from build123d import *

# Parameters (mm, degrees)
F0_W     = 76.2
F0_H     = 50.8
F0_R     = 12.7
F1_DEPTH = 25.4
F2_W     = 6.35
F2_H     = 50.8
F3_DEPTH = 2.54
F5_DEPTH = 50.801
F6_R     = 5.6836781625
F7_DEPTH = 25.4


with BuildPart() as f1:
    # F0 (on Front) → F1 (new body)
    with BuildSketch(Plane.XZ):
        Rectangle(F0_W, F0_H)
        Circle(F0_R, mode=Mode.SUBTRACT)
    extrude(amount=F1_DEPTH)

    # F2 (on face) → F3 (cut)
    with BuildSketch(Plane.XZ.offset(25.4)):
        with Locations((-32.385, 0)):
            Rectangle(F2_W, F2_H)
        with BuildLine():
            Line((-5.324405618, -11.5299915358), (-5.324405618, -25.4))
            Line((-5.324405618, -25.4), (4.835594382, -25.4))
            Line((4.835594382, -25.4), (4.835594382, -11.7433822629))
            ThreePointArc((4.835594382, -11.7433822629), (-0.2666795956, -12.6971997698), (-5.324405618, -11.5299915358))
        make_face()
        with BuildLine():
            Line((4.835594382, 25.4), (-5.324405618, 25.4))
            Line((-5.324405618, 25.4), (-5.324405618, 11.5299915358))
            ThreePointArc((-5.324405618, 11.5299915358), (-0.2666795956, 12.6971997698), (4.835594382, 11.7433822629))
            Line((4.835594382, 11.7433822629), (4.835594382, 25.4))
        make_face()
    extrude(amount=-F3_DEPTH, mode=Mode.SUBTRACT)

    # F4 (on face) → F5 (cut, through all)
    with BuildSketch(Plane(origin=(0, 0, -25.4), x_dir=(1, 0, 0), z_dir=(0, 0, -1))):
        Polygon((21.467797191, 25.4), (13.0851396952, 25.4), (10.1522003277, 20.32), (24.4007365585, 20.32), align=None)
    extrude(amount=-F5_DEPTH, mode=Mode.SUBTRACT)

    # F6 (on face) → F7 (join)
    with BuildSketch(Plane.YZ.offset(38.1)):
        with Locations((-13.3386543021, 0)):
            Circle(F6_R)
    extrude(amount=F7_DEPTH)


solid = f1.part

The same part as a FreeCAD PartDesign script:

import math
import FreeCAD as App
import Part
import Sketcher

V = App.Vector
Q = App.Units.Quantity

doc = App.newDocument("Part")
body = doc.addObject("PartDesign::Body", "Body")

sketch1 = doc.addObject("Sketcher::SketchObject", "Sketch")
body.addObject(sketch1)
sketch1.AttachmentSupport = (doc.XZ_Plane, [""])
sketch1.MapMode = "FlatFace"
sketch1.addGeometry([
    Part.LineSegment(V(-38, 25, 0), V(-38, -25, 0)),
    Part.LineSegment(V(-38, -25, 0), V(38, -25, 0)),
    Part.LineSegment(V(38, -25, 0), V(38, 25, 0)),
    Part.LineSegment(V(38, 25, 0), V(-38, 25, 0)),
    Part.Circle(V(0, 0, 0), V(0, 0, 1), 13),
], False)
sketch1.addConstraint([
    Sketcher.Constraint("Coincident", 0, 2, 1, 1),
    Sketcher.Constraint("Coincident", 1, 2, 2, 1),
    Sketcher.Constraint("Coincident", 2, 2, 3, 1),
    Sketcher.Constraint("Coincident", 3, 2, 0, 1),
    Sketcher.Constraint("Vertical", 0),
    Sketcher.Constraint("Horizontal", 1),
    Sketcher.Constraint("Vertical", 2),
    Sketcher.Constraint("Horizontal", 3),
    Sketcher.Constraint("Coincident", 4, 3, -1, 1),
    Sketcher.Constraint("Symmetric", 0, 2, 2, 2, -1, 1),
    Sketcher.Constraint("Diameter", 4, Q("1 in")),
    Sketcher.Constraint("DistanceX", 1, 1, 1, 2, Q("3 in")),
    Sketcher.Constraint("DistanceY", 0, 2, 0, 1, Q("2 in")),
])
pad1 = doc.addObject("PartDesign::Pad", "Pad")
body.addObject(pad1)
pad1.Profile = sketch1
pad1.Length = Q("1 in")

sketch2 = doc.addObject("Sketcher::SketchObject", "Sketch001")
body.addObject(sketch2)
sketch2.AttachmentSupport = (doc.XZ_Plane, [""])
sketch2.MapMode = "FlatFace"
sketch2.AttachmentOffset = App.Placement(V(0, 0, 1 * 25.4), App.Rotation())
sketch2.addGeometry([
    Part.LineSegment(V(-36, 25, 0), V(-36, -25, 0)),
    Part.LineSegment(V(-36, -25, 0), V(-29, -25, 0)),
    Part.LineSegment(V(-29, -25, 0), V(-29, 25, 0)),
    Part.LineSegment(V(-29, 25, 0), V(-36, 25, 0)),
    Part.LineSegment(V(-5, -12, 0), V(-5, -25, 0)),
    Part.LineSegment(V(-5, -25, 0), V(5, -25, 0)),
    Part.LineSegment(V(5, -25, 0), V(5, -12, 0)),
    Part.ArcOfCircle(Part.Circle(V(0, 0, 0), V(0, 0, 1), 13), math.radians(-115), math.radians(-68)),
    Part.LineSegment(V(5, 25, 0), V(-5, 25, 0)),
    Part.LineSegment(V(-5, 25, 0), V(-5, 12, 0)),
    Part.ArcOfCircle(Part.Circle(V(0, 0, 0), V(0, 0, 1), 13), math.radians(68), math.radians(115)),
    Part.LineSegment(V(5, 12, 0), V(5, 25, 0)),
], False)
sketch2.addConstraint([
    Sketcher.Constraint("Coincident", 0, 2, 1, 1),
    Sketcher.Constraint("Coincident", 1, 2, 2, 1),
    Sketcher.Constraint("Coincident", 2, 2, 3, 1),
    Sketcher.Constraint("Coincident", 3, 2, 0, 1),
    Sketcher.Constraint("Coincident", 4, 2, 5, 1),
    Sketcher.Constraint("Coincident", 5, 2, 6, 1),
    Sketcher.Constraint("Coincident", 6, 2, 7, 2),
    Sketcher.Constraint("Coincident", 7, 1, 4, 1),
    Sketcher.Constraint("Coincident", 8, 2, 9, 1),
    Sketcher.Constraint("Coincident", 9, 2, 10, 2),
    Sketcher.Constraint("Coincident", 10, 1, 11, 1),
    Sketcher.Constraint("Coincident", 11, 2, 8, 1),
    Sketcher.Constraint("Vertical", 0),
    Sketcher.Constraint("Horizontal", 1),
    Sketcher.Constraint("Vertical", 2),
    Sketcher.Constraint("Horizontal", 3),
    Sketcher.Constraint("Vertical", 4),
    Sketcher.Constraint("Horizontal", 5),
    Sketcher.Constraint("Vertical", 6),
    Sketcher.Constraint("Horizontal", 8),
    Sketcher.Constraint("Vertical", 9),
    Sketcher.Constraint("Vertical", 11),
    Sketcher.Constraint("Coincident", 7, 3, -1, 1),
    Sketcher.Constraint("Coincident", 10, 3, -1, 1),
    Sketcher.Constraint("Equal", 7, 10),
    Sketcher.Constraint("Symmetric", 4, 2, 8, 2, -1),
    Sketcher.Constraint("Horizontal", 1, 2, 4, 2),
    Sketcher.Constraint("Horizontal", 3, 2, 8, 2),
    Sketcher.Constraint("Vertical", 6, 2, 10, 1),
    Sketcher.Constraint("Radius", 7, Q("0.5 in")),
    Sketcher.Constraint("DistanceY", 0, 2, 0, 1, Q("2 in")),
    Sketcher.Constraint("DistanceX", 5, 1, 5, 2, Q("0.4 in")),
    Sketcher.Constraint("DistanceX", 1, 1, 1, 2, Q("0.25 in")),
    Sketcher.Constraint("DistanceX", 0, 2, -1, 1, Q("1.4 in")),
    Sketcher.Constraint("DistanceY", 4, 2, 4, 1, 13.870008),
])
pocket1 = doc.addObject("PartDesign::Pocket", "Pocket")
body.addObject(pocket1)
pocket1.Profile = sketch2
pocket1.Length = Q("0.1 in")

sketch3 = doc.addObject("Sketcher::SketchObject", "Sketch002")
body.addObject(sketch3)
sketch3.AttachmentSupport = (doc.XY_Plane, [""])
sketch3.MapMode = "FlatFace"
sketch3.AttachmentOffset = App.Placement(V(0, 0, -1 * 25.4), App.Rotation())
sketch3.addGeometry([
    Part.LineSegment(V(21, -25, 0), V(13, -25, 0)),
    Part.LineSegment(V(13, -25, 0), V(10, -20, 0)),
    Part.LineSegment(V(10, -20, 0), V(24, -20, 0)),
    Part.LineSegment(V(24, -20, 0), V(21, -25, 0)),
], False)
sketch3.addConstraint([
    Sketcher.Constraint("Coincident", 0, 2, 1, 1),
    Sketcher.Constraint("Coincident", 1, 2, 2, 1),
    Sketcher.Constraint("Coincident", 2, 2, 3, 1),
    Sketcher.Constraint("Coincident", 3, 2, 0, 1),
    Sketcher.Constraint("Horizontal", 0),
    Sketcher.Constraint("Horizontal", 2),
    Sketcher.Constraint("Equal", 1, 3),
    Sketcher.Constraint("DistanceY", 0, 2, -1, 1, Q("1 in")),
    Sketcher.Constraint("Angle", 1, Q("120 deg")),
    Sketcher.Constraint("DistanceY", 1, 2, -1, 1, Q("0.8 in")),
    Sketcher.Constraint("DistanceX", -1, 1, 1, 2, 10.1522),
    Sketcher.Constraint("DistanceX", 0, 2, 0, 1, 8.382657),
])
pocket2 = doc.addObject("PartDesign::Pocket", "Pocket001")
body.addObject(pocket2)
pocket2.Profile = sketch3
pocket2.Type = "ThroughAll"
pocket2.Reversed = True

sketch4 = doc.addObject("Sketcher::SketchObject", "Sketch003")
body.addObject(sketch4)
sketch4.AttachmentSupport = (doc.YZ_Plane, [""])
sketch4.MapMode = "FlatFace"
sketch4.AttachmentOffset = App.Placement(V(0, 0, 1.5 * 25.4), App.Rotation())
sketch4.addGeometry(Part.Circle(V(-13, 0, 0), V(0, 0, 1), 6), False)
sketch4.addConstraint([
    Sketcher.Constraint("PointOnObject", 0, 3, -1),
    Sketcher.Constraint("Diameter", 0, 11.367356),
    Sketcher.Constraint("DistanceX", 0, 3, -1, 1, 13.338654),
])
pad2 = doc.addObject("PartDesign::Pad", "Pad001")
body.addObject(pad2)
pad2.Profile = sketch4
pad2.Length = Q("1 in")

doc.recompute()
